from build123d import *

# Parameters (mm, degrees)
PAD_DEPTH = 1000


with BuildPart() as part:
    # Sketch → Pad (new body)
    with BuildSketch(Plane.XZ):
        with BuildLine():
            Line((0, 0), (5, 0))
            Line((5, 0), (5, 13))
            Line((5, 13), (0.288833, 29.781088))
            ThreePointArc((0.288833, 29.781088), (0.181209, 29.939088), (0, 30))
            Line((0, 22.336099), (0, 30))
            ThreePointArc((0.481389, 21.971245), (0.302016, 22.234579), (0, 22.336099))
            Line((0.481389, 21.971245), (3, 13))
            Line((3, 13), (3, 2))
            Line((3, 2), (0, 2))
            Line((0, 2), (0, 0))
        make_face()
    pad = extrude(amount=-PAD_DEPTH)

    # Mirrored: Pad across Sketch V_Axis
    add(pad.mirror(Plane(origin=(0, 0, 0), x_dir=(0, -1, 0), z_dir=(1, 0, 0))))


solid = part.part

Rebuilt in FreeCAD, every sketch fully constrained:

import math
import FreeCAD as App
import Part
import Sketcher
from FreeCAD import Vector
Q = App.Units.Quantity

doc = App.newDocument("Part")
body = doc.addObject("PartDesign::Body", "Body")

# Sketch on XZ plane
sketch1 = body.newObject("Sketcher::SketchObject", "Sketch")
sketch1.AttachmentSupport = (doc.getObject("XZ_Plane"), [""])
sketch1.MapMode = "FlatFace"
sketch1.addGeometry([
    Part.LineSegment(Vector(0, 0, 0), Vector(5, 0, 0)),  # 0
    Part.LineSegment(Vector(5, 0, 0), Vector(5, 13, 0)),  # 1
    Part.LineSegment(Vector(5, 13, 0), Vector(0.29, 29.78, 0)),  # 2
    Part.ArcOfCircle(Part.Circle(Vector(0, 29.7, 0), Vector(0, 0, 1), 0.3), math.radians(16), math.radians(90)),  # 3
    Part.LineSegment(Vector(0, 30, 0), Vector(0, 22.34, 0)),  # 4
    Part.ArcOfCircle(Part.Circle(Vector(0, 21.84, 0), Vector(0, 0, 1), 0.5), math.radians(16), math.radians(90)),  # 5
    Part.LineSegment(Vector(0.48, 21.97, 0), Vector(3, 13, 0)),  # 6
    Part.LineSegment(Vector(3, 13, 0), Vector(3, 2, 0)),  # 7
    Part.LineSegment(Vector(3, 2, 0), Vector(0, 2, 0)),  # 8
    Part.LineSegment(Vector(0, 2, 0), Vector(0, 0, 0)),  # 9
], False)
sketch1.addConstraint([
    Sketcher.Constraint("Coincident", 0, 2, 1, 1),
    Sketcher.Constraint("Coincident", 1, 2, 2, 1),
    Sketcher.Constraint("Tangent", 2, 2, 3, 1),
    Sketcher.Constraint("Coincident", 3, 2, 4, 1),
    Sketcher.Constraint("Coincident", 4, 2, 5, 2),
    Sketcher.Constraint("Tangent", 5, 1, 6, 1),
    Sketcher.Constraint("Coincident", 6, 2, 7, 1),
    Sketcher.Constraint("Coincident", 7, 2, 8, 1),
    Sketcher.Constraint("Coincident", 8, 2, 9, 1),
    Sketcher.Constraint("Coincident", 9, 2, 0, 1),
    Sketcher.Constraint("Horizontal", 0),
    Sketcher.Constraint("Vertical", 1),
    Sketcher.Constraint("Vertical", 4),
    Sketcher.Constraint("Vertical", 7),
    Sketcher.Constraint("Horizontal", 8),
    Sketcher.Constraint("Vertical", 9),
    Sketcher.Constraint("Coincident", 9, 2, -1, 1),
    Sketcher.Constraint("PointOnObject", 3, 3, -2),
    Sketcher.Constraint("PointOnObject", 5, 3, -2),
    Sketcher.Constraint("PointOnObject", 3, 2, -2),
    Sketcher.Constraint("Parallel", 2, 6),
    Sketcher.Constraint("Horizontal", 1, 2, 6, 2),
    Sketcher.Constraint("Radius", 3, Q("0.300001 mm")),
    Sketcher.Constraint("Radius", 5, Q("0.5 mm")),
    Sketcher.Constraint("DistanceX", 0, 1, 0, 2, Q("5 mm")),
    Sketcher.Constraint("DistanceX", 8, 2, 8, 1, Q("3 mm")),
    Sketcher.Constraint("DistanceY", 1, 1, 1, 2, Q("13 mm")),
    Sketcher.Constraint("DistanceY", 7, 2, 7, 1, Q("11 mm")),
    Sketcher.Constraint("DistanceY", -1, 1, 3, 2, Q("30 mm")),
])
pad1 = body.newObject("PartDesign::Pad", "Pad")
pad1.Profile = sketch1
pad1.Length = 1000
pad1.Reversed = True
doc.recompute()

mirrored = body.newObject("PartDesign::Mirrored", "Mirrored")
mirrored.Originals = [pad1]
mirrored.MirrorPlane = (doc.getObject("YZ_Plane"), [""])
body.Tip = mirrored

doc.recompute()
